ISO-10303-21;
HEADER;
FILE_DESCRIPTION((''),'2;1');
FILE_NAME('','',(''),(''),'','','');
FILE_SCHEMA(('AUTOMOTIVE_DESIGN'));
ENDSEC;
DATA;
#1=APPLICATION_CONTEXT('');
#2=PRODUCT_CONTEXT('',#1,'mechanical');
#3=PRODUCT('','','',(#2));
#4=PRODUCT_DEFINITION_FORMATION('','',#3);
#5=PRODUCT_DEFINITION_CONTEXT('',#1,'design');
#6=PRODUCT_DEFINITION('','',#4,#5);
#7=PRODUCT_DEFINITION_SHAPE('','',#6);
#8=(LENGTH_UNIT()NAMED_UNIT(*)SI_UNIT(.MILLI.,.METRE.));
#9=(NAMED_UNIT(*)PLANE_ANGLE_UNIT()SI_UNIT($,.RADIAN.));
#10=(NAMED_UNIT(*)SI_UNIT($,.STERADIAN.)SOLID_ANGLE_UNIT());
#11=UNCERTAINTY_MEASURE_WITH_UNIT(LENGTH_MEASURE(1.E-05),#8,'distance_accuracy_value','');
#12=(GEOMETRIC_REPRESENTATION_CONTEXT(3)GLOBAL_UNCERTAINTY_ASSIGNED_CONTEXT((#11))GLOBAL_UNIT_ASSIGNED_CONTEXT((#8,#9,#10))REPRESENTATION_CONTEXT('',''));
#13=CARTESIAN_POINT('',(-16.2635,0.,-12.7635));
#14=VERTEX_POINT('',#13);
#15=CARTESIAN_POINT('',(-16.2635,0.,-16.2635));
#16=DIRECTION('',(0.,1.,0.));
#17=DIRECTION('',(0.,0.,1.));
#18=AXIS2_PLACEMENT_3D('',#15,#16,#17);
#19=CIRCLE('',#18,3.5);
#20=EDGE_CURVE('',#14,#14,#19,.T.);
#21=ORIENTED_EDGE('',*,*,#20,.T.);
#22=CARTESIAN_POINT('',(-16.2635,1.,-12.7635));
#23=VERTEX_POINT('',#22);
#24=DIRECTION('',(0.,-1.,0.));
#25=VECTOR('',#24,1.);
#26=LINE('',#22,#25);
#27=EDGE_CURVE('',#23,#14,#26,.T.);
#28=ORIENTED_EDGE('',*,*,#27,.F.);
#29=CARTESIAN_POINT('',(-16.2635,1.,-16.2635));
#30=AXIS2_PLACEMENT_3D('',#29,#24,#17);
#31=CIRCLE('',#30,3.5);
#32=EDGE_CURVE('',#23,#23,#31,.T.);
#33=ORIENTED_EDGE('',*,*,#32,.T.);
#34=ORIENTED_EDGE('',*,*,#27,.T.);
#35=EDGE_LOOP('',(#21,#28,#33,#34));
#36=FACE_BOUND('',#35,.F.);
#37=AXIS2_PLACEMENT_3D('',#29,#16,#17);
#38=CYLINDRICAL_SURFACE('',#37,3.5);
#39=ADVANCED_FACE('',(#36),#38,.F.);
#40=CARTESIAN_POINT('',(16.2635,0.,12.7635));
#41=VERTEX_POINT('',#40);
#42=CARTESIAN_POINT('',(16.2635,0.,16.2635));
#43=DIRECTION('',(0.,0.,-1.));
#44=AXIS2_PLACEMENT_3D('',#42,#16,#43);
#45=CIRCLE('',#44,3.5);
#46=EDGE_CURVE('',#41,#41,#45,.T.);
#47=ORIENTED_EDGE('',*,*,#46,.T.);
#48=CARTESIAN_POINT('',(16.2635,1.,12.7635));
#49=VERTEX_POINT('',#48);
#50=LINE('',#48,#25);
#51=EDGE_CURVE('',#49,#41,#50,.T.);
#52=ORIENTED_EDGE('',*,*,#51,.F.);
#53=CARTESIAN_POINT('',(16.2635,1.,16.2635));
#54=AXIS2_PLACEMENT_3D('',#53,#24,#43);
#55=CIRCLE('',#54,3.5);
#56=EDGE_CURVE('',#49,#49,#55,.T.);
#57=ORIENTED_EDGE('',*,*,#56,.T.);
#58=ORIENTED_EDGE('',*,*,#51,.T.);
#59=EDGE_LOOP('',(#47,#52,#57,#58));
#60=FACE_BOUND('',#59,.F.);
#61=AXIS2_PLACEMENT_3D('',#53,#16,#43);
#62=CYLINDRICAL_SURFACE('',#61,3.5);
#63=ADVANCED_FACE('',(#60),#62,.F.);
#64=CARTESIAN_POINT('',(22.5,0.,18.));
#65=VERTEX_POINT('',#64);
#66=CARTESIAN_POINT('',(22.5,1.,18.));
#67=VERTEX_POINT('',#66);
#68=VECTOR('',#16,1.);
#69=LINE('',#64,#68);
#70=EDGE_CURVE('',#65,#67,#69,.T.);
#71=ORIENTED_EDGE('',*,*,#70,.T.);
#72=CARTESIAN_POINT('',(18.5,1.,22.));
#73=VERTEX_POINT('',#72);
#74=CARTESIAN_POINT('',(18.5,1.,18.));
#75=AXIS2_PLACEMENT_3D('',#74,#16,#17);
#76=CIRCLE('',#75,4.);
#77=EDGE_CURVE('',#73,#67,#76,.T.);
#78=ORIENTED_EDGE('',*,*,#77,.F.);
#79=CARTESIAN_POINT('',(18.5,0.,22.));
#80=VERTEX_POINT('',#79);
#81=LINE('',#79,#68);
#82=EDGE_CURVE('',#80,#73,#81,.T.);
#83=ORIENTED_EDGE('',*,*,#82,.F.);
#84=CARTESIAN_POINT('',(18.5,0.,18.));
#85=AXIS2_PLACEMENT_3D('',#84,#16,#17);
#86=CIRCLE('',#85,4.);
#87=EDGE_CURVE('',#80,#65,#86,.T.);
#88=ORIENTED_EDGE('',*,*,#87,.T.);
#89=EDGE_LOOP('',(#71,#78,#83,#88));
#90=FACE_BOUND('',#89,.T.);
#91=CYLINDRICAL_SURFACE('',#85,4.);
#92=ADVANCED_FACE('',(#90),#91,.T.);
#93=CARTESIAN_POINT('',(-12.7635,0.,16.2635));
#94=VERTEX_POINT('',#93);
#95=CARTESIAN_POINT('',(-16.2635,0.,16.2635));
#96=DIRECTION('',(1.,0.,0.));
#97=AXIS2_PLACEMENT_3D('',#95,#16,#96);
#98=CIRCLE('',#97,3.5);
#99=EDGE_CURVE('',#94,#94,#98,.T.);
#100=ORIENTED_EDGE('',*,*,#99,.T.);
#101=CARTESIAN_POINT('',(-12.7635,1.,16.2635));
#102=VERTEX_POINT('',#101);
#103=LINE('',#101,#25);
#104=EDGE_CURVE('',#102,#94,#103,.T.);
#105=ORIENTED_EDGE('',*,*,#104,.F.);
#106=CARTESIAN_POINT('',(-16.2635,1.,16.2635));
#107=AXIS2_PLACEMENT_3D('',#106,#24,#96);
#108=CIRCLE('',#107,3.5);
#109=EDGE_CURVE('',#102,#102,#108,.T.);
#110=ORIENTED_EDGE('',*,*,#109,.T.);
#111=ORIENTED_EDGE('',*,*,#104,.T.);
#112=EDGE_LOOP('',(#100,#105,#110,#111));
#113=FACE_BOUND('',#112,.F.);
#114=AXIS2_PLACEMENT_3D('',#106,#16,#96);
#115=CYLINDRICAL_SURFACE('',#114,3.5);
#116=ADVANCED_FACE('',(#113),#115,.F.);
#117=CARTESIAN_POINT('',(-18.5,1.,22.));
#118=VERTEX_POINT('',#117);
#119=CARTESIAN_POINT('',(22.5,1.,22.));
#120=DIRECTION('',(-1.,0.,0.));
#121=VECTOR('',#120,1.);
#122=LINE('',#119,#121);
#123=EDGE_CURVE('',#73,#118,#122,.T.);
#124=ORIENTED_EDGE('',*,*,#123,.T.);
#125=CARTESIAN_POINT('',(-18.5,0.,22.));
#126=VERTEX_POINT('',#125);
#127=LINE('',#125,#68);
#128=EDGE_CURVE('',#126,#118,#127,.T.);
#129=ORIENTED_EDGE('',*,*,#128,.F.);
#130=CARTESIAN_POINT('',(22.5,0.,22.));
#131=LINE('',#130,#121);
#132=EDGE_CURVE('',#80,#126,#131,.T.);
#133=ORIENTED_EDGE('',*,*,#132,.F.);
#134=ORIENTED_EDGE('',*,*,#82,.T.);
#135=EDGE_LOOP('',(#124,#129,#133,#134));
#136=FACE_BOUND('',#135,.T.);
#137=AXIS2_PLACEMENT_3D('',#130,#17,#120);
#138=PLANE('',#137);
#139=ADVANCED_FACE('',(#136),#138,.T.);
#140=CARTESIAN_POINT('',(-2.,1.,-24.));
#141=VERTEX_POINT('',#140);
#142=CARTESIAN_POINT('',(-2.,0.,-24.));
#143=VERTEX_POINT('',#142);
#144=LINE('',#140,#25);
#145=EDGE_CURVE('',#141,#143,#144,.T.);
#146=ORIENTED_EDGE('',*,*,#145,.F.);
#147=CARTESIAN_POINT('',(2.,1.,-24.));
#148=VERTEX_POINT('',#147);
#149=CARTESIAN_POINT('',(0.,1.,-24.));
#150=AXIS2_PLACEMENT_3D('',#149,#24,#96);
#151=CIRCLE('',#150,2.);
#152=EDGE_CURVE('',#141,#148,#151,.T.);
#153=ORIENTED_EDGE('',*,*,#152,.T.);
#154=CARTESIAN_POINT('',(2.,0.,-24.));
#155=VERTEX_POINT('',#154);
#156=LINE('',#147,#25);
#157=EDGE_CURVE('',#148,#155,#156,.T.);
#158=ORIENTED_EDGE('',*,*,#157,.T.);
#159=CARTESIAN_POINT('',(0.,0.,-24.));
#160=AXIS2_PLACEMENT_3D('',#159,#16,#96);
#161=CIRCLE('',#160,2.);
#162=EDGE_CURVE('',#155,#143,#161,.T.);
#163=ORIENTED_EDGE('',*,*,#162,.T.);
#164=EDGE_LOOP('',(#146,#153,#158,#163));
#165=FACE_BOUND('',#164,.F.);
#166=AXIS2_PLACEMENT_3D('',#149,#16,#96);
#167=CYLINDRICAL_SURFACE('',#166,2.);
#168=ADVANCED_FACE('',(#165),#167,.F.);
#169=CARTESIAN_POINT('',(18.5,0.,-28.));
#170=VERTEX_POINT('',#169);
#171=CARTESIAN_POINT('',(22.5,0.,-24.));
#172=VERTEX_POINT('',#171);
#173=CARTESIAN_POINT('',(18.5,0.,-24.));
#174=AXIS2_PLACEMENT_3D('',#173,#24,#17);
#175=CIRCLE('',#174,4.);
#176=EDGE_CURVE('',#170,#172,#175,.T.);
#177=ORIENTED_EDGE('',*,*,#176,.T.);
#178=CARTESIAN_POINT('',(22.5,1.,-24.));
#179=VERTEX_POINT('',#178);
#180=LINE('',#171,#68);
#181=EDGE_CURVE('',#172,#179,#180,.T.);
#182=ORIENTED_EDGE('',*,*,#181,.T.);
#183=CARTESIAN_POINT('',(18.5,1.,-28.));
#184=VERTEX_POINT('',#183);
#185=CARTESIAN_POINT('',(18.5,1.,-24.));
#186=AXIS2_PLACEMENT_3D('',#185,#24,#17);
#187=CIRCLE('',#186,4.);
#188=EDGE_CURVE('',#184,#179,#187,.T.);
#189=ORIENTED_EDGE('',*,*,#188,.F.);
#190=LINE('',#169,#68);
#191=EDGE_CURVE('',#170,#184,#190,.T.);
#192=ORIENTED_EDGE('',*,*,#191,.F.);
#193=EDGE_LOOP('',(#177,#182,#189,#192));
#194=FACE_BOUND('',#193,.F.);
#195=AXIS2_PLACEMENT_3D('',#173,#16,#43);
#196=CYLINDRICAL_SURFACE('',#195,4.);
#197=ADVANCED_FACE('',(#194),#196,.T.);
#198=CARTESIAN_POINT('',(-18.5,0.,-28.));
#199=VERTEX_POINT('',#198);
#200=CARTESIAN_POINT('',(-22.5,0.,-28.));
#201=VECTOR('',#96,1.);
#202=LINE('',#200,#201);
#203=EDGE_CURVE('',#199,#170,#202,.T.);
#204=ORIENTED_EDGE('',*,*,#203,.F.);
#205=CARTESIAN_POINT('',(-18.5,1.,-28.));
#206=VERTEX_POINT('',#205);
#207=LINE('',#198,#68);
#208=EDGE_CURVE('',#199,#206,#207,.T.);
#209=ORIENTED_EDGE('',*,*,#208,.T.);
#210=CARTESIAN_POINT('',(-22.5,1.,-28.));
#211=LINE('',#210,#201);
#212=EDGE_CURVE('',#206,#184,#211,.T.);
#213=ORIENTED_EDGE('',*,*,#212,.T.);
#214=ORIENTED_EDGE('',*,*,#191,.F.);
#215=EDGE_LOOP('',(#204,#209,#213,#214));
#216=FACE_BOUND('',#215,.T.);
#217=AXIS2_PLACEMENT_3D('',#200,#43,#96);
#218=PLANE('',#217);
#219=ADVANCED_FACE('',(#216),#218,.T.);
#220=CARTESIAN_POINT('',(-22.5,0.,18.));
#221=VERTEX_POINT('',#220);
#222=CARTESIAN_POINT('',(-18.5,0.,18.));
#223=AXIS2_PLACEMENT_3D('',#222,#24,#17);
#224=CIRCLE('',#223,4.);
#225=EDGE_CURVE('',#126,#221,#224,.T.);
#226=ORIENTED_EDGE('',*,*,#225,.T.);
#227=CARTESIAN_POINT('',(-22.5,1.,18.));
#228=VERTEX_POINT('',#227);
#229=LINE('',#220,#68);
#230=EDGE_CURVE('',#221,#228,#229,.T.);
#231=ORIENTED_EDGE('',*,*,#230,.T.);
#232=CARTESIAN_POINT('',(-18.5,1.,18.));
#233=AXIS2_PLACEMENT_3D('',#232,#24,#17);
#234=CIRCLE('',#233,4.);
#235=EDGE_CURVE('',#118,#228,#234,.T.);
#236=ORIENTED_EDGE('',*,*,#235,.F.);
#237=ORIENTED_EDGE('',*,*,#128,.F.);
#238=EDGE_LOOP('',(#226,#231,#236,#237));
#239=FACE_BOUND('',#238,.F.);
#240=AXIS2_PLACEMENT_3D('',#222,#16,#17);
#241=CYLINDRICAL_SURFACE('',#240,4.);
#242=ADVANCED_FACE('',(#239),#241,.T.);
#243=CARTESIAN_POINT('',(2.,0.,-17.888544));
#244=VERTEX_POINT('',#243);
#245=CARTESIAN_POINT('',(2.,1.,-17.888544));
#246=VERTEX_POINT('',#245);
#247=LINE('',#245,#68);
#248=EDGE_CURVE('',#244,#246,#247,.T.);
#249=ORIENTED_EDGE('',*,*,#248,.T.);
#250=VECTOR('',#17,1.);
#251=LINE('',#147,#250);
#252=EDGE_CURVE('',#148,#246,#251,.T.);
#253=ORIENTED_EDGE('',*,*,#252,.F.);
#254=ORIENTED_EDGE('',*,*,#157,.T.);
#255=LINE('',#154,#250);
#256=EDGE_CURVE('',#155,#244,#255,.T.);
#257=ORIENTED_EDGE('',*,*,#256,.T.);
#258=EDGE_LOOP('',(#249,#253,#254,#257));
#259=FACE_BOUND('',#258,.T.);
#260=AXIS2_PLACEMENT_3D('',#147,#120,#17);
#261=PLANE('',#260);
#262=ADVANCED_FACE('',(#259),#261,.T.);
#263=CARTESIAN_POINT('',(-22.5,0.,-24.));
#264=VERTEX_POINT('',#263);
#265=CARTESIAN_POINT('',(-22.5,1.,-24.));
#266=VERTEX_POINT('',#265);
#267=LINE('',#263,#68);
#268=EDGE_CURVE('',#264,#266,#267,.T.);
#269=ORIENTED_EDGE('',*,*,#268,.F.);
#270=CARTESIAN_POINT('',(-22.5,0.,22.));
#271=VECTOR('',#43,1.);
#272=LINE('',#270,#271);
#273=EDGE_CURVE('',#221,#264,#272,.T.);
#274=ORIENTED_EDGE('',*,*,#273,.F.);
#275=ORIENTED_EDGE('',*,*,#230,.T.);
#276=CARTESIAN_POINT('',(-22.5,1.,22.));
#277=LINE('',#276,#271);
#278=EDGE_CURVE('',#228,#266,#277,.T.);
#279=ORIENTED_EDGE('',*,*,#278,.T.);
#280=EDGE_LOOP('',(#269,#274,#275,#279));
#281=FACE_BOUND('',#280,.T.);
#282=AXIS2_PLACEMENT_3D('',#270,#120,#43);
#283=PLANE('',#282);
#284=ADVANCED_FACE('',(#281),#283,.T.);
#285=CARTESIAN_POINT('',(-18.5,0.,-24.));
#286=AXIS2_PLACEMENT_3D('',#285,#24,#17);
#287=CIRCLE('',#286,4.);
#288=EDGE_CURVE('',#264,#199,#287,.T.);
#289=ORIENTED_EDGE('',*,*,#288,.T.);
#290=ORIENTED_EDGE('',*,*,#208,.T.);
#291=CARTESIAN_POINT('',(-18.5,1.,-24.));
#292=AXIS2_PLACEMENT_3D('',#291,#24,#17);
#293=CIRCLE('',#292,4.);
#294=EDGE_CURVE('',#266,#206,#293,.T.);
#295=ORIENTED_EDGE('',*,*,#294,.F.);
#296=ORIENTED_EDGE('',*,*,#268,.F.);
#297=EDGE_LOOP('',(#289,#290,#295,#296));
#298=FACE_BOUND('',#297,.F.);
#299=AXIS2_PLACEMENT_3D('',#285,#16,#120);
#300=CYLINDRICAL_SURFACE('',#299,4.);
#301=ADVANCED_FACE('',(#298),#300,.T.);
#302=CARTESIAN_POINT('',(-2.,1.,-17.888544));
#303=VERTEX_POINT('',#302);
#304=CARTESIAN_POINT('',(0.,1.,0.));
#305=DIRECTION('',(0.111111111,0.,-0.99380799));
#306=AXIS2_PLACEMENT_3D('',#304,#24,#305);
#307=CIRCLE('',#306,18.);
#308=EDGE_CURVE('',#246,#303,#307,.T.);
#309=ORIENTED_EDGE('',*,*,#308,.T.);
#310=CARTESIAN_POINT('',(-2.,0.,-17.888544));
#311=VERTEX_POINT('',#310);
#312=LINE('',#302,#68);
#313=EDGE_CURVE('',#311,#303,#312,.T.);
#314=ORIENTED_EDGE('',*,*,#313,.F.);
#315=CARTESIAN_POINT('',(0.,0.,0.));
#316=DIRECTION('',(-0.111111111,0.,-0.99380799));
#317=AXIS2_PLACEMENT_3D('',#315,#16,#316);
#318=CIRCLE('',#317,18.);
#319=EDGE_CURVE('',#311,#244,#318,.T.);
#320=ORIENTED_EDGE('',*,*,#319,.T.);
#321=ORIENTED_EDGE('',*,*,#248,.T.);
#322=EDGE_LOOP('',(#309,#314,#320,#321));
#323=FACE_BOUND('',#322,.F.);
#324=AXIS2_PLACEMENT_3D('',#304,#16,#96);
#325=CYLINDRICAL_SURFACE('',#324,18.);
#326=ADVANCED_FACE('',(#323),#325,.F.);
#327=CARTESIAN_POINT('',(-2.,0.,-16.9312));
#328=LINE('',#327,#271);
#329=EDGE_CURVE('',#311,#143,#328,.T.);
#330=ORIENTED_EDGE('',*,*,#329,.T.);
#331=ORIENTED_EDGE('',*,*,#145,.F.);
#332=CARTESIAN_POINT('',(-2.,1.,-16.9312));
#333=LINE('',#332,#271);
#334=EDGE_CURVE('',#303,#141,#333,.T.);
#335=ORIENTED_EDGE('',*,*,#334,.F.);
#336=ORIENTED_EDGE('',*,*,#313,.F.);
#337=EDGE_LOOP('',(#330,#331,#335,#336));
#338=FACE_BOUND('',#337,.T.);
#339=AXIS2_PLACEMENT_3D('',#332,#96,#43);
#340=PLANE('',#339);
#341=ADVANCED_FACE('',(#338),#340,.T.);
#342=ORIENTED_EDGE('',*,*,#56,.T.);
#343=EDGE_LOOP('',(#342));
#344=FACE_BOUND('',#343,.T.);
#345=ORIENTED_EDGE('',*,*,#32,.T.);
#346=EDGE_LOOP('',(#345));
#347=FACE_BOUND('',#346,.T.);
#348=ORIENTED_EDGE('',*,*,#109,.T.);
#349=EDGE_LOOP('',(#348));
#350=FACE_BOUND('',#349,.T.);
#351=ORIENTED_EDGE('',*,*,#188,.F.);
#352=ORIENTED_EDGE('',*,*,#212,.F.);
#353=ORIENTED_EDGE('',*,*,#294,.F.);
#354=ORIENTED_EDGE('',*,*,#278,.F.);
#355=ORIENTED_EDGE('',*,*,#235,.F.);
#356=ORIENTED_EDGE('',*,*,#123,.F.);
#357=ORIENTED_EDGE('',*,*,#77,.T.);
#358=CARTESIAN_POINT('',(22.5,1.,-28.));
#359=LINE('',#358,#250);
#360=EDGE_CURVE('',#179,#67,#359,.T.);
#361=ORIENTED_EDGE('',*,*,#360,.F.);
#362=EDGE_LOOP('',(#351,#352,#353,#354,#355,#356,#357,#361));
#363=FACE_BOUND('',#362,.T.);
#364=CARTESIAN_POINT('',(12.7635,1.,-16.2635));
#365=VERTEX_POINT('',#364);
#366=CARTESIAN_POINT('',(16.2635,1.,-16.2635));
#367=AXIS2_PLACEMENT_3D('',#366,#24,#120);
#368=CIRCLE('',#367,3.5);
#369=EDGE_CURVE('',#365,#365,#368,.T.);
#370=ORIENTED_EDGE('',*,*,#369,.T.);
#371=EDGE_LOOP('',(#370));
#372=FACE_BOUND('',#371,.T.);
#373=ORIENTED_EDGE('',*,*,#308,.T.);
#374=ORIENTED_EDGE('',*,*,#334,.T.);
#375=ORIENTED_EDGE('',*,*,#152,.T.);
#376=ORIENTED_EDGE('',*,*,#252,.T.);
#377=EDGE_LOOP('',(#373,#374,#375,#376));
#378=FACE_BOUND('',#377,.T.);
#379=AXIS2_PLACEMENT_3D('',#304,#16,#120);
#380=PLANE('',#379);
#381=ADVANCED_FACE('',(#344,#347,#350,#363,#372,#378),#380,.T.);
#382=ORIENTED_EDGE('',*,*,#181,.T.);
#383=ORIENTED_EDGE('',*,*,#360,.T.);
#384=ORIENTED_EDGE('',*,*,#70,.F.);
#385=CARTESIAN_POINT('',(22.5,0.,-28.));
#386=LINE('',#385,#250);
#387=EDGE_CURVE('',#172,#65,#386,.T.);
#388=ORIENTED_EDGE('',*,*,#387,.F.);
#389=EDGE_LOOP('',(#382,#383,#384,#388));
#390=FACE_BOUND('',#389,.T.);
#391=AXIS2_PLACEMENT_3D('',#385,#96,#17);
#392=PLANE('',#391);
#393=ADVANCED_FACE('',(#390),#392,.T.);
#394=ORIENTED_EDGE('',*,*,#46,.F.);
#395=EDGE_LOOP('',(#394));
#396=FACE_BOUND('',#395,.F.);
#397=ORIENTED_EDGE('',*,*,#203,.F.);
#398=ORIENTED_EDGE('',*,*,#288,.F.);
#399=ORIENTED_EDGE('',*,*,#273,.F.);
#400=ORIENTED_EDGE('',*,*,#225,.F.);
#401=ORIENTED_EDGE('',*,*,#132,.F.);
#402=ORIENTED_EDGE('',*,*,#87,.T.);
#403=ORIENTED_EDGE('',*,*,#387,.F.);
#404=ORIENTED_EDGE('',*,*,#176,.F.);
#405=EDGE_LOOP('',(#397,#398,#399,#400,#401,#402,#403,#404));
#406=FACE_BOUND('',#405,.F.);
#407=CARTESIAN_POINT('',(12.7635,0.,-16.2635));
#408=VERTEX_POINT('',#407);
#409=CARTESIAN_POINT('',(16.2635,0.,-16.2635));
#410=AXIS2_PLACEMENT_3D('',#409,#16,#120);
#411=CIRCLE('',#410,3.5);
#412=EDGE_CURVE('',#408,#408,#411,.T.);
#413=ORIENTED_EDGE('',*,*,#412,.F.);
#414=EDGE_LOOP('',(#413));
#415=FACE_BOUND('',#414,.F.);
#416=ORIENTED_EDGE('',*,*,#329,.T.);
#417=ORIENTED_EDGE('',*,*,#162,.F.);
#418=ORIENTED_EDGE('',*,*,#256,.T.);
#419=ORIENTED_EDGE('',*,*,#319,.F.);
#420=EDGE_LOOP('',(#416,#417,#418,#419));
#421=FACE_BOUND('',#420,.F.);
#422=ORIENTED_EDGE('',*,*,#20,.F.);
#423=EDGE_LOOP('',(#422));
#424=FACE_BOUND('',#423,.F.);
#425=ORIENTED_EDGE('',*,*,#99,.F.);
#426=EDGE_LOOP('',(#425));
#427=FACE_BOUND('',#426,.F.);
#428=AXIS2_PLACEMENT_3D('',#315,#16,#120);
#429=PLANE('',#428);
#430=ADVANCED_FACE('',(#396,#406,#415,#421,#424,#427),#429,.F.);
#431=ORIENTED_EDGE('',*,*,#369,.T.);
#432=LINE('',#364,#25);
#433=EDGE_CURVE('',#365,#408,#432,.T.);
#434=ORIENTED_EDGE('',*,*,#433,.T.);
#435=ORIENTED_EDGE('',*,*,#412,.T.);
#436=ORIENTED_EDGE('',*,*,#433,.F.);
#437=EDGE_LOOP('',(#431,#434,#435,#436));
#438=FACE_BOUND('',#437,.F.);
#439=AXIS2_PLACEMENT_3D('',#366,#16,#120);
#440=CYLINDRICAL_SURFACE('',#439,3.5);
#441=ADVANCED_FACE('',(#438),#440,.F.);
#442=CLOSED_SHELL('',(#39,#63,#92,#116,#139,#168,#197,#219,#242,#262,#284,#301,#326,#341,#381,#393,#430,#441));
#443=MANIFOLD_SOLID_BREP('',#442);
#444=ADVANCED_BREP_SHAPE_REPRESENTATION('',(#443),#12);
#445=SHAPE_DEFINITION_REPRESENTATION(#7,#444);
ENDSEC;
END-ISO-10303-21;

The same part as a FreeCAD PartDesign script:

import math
import FreeCAD as App
import Part
import Sketcher
from FreeCAD import Vector


def edges_at(feature, points):
    """Names of the edges that pass closest to the given points."""
    edges = feature.Shape.Edges
    near = lambda p: min(range(len(edges)), key=lambda i: edges[i].distToShape(Part.Vertex(*p))[0])
    return sorted({f"Edge{near(p) + 1}" for p in points})


def add_polygon(sketch, points):
    """Adds a closed chain of lines whose ends are joined by coincident constraints."""
    first, n = sketch.GeometryCount, len(points)
    for a, b in zip(points, points[1:] + points[:1]):
        sketch.addGeometry(Part.LineSegment(App.Vector(*a, 0), App.Vector(*b, 0)), False)
    for i in range(n):
        sketch.addConstraint(Sketcher.Constraint("Coincident", first + i, 2, first + (i + 1) % n, 1))

doc = App.newDocument("Part")
body = doc.addObject("PartDesign::Body", "Body")

# Sketch on XZ plane
sketch1 = doc.addObject("Sketcher::SketchObject", "Sketch")
body.addObject(sketch1)
sketch1.AttachmentSupport = (doc.XZ_Plane, [""])
sketch1.MapMode = "FlatFace"
add_polygon(sketch1, [(-22, 22), (22, 22), (22, -28), (-22, -28)])  # lines 0-3
sketch1.addConstraint([
    Sketcher.Constraint("Horizontal", 0),
    Sketcher.Constraint("Vertical", 1),
    Sketcher.Constraint("Horizontal", 2),
    Sketcher.Constraint("Vertical", 3),
    Sketcher.Constraint("DistanceX", 0, 1, 0, 2, 45.0),
    Sketcher.Constraint("DistanceY", 1, 2, 1, 1, 50.0),
    Sketcher.Constraint("DistanceY", -1, 1, 0, 2, 22.0),
    Sketcher.Constraint("DistanceX", -1, 1, 0, 2, 22.5),
])
pad1 = doc.addObject("PartDesign::Pad", "Pad")
body.addObject(pad1)
pad1.Profile = sketch1
pad1.Length = 1
pad1.Reversed = True
doc.recompute()

fillet = doc.addObject("PartDesign::Fillet", "Fillet")
body.addObject(fillet)
fillet.Base = (pad1, edges_at(pad1, [
    (22.5, 0.5, 22),
    (-22.5, 0.5, 22),
    (-22.5, 0.5, -28),
    (22.5, 0.5, -28),
]))
fillet.Radius = 4

# Sketch on XZ plane
sketch2 = doc.addObject("Sketcher::SketchObject", "Sketch001")
body.addObject(sketch2)
sketch2.AttachmentSupport = (doc.XZ_Plane, [""])
sketch2.MapMode = "FlatFace"
sketch2.AttachmentOffset = App.Placement(Vector(0, 0, -1), App.Rotation())
sketch2.addGeometry(Part.Circle(Vector(0, 0, 0), Vector(0, 0, 1), 18), False)
sketch2.addConstraint([
    Sketcher.Constraint("Coincident", 0, 3, -1, 1),
    Sketcher.Constraint("Diameter", 0, 36.0),
])
pocket1 = doc.addObject("PartDesign::Pocket", "Pocket")
body.addObject(pocket1)
pocket1.Profile = sketch2
pocket1.Length = 1
pocket1.Reversed = True

# Sketch on XZ plane
sketch3 = doc.addObject("Sketcher::SketchObject", "Sketch002")
body.addObject(sketch3)
sketch3.AttachmentSupport = (doc.XZ_Plane, [""])
sketch3.MapMode = "FlatFace"
sketch3.AttachmentOffset = App.Placement(Vector(0, 0, -1), App.Rotation())
sketch3.addGeometry(Part.Circle(Vector(0, -24, 0), Vector(0, 0, 1), 2), False)
sketch3.addConstraint([
    Sketcher.Constraint("PointOnObject", 0, 3, -2),
    Sketcher.Constraint("Diameter", 0, 4.0),
    Sketcher.Constraint("DistanceY", 0, 3, -1, 1, 24.0),
])
pocket2 = doc.addObject("PartDesign::Pocket", "Pocket001")
body.addObject(pocket2)
pocket2.Profile = sketch3
pocket2.Length = 1
pocket2.Reversed = True

# Sketch on XZ plane
sketch4 = doc.addObject("Sketcher::SketchObject", "Sketch003")
body.addObject(sketch4)
sketch4.AttachmentSupport = (doc.XZ_Plane, [""])
sketch4.MapMode = "FlatFace"
sketch4.AttachmentOffset = App.Placement(Vector(0, 0, -1), App.Rotation())
sketch4.addGeometry(Part.Circle(Vector(-16.3, 16.3, 0), Vector(0, 0, 1), 3.5), False)
sketch4.addConstraint([
    Sketcher.Constraint("Diameter", 0, 7.0),
    Sketcher.Constraint("DistanceX", 0, 3, -1, 1, 16.2635),
    Sketcher.Constraint("DistanceY", -1, 1, 0, 3, 16.2635),
])
pocket3 = doc.addObject("PartDesign::Pocket", "Pocket002")
body.addObject(pocket3)
pocket3.Profile = sketch4
pocket3.Length = 1
pocket3.Reversed = True
doc.recompute()

polarpattern = doc.addObject("PartDesign::PolarPattern", "PolarPattern")
body.addObject(polarpattern)
polarpattern.Originals = [pocket3]
polarpattern.Axis = (doc.Y_Axis, [""])
polarpattern.Angle = 360
polarpattern.Occurrences = 4
body.Tip = polarpattern

# Sketch on XZ plane
sketch5 = doc.addObject("Sketcher::SketchObject", "Sketch004")
body.addObject(sketch5)
sketch5.AttachmentSupport = (doc.XZ_Plane, [""])
sketch5.MapMode = "FlatFace"
sketch5.AttachmentOffset = App.Placement(Vector(0, 0, -1), App.Rotation())
sketch5.addGeometry([
    Part.LineSegment(Vector(2, -16.9, 0), Vector(2, -24, 0)),
    Part.ArcOfCircle(Part.Circle(Vector(0, -24, 0), Vector(0, 0, 1), 2), math.radians(0), math.radians(180)),
    Part.LineSegment(Vector(-2, -24, 0), Vector(-2, -16.9, 0)),
    Part.LineSegment(Vector(-2, -16.9, 0), Vector(2, -16.9, 0)),
], False)
sketch5.addConstraint([
    Sketcher.Constraint("Tangent", 0, 2, 1, 1),
    Sketcher.Constraint("Tangent", 1, 2, 2, 1),
    Sketcher.Constraint("Coincident", 2, 2, 3, 1),
    Sketcher.Constraint("Coincident", 3, 2, 0, 1),
    Sketcher.Constraint("Vertical", 0),
    Sketcher.Constraint("Vertical", 2),
    Sketcher.Constraint("Horizontal", 3),
    Sketcher.Constraint("PointOnObject", 1, 3, -2),
    Sketcher.Constraint("Radius", 1, 2.0),
    Sketcher.Constraint("DistanceY", 1, 3, -1, 1, 24.0),
    Sketcher.Constraint("DistanceY", 0, 2, 0, 1, 7.0688),
])
pocket4 = doc.addObject("PartDesign::Pocket", "Pocket003")
body.addObject(pocket4)
pocket4.Profile = sketch5
pocket4.Length = 1
pocket4.Reversed = True

doc.recompute()
